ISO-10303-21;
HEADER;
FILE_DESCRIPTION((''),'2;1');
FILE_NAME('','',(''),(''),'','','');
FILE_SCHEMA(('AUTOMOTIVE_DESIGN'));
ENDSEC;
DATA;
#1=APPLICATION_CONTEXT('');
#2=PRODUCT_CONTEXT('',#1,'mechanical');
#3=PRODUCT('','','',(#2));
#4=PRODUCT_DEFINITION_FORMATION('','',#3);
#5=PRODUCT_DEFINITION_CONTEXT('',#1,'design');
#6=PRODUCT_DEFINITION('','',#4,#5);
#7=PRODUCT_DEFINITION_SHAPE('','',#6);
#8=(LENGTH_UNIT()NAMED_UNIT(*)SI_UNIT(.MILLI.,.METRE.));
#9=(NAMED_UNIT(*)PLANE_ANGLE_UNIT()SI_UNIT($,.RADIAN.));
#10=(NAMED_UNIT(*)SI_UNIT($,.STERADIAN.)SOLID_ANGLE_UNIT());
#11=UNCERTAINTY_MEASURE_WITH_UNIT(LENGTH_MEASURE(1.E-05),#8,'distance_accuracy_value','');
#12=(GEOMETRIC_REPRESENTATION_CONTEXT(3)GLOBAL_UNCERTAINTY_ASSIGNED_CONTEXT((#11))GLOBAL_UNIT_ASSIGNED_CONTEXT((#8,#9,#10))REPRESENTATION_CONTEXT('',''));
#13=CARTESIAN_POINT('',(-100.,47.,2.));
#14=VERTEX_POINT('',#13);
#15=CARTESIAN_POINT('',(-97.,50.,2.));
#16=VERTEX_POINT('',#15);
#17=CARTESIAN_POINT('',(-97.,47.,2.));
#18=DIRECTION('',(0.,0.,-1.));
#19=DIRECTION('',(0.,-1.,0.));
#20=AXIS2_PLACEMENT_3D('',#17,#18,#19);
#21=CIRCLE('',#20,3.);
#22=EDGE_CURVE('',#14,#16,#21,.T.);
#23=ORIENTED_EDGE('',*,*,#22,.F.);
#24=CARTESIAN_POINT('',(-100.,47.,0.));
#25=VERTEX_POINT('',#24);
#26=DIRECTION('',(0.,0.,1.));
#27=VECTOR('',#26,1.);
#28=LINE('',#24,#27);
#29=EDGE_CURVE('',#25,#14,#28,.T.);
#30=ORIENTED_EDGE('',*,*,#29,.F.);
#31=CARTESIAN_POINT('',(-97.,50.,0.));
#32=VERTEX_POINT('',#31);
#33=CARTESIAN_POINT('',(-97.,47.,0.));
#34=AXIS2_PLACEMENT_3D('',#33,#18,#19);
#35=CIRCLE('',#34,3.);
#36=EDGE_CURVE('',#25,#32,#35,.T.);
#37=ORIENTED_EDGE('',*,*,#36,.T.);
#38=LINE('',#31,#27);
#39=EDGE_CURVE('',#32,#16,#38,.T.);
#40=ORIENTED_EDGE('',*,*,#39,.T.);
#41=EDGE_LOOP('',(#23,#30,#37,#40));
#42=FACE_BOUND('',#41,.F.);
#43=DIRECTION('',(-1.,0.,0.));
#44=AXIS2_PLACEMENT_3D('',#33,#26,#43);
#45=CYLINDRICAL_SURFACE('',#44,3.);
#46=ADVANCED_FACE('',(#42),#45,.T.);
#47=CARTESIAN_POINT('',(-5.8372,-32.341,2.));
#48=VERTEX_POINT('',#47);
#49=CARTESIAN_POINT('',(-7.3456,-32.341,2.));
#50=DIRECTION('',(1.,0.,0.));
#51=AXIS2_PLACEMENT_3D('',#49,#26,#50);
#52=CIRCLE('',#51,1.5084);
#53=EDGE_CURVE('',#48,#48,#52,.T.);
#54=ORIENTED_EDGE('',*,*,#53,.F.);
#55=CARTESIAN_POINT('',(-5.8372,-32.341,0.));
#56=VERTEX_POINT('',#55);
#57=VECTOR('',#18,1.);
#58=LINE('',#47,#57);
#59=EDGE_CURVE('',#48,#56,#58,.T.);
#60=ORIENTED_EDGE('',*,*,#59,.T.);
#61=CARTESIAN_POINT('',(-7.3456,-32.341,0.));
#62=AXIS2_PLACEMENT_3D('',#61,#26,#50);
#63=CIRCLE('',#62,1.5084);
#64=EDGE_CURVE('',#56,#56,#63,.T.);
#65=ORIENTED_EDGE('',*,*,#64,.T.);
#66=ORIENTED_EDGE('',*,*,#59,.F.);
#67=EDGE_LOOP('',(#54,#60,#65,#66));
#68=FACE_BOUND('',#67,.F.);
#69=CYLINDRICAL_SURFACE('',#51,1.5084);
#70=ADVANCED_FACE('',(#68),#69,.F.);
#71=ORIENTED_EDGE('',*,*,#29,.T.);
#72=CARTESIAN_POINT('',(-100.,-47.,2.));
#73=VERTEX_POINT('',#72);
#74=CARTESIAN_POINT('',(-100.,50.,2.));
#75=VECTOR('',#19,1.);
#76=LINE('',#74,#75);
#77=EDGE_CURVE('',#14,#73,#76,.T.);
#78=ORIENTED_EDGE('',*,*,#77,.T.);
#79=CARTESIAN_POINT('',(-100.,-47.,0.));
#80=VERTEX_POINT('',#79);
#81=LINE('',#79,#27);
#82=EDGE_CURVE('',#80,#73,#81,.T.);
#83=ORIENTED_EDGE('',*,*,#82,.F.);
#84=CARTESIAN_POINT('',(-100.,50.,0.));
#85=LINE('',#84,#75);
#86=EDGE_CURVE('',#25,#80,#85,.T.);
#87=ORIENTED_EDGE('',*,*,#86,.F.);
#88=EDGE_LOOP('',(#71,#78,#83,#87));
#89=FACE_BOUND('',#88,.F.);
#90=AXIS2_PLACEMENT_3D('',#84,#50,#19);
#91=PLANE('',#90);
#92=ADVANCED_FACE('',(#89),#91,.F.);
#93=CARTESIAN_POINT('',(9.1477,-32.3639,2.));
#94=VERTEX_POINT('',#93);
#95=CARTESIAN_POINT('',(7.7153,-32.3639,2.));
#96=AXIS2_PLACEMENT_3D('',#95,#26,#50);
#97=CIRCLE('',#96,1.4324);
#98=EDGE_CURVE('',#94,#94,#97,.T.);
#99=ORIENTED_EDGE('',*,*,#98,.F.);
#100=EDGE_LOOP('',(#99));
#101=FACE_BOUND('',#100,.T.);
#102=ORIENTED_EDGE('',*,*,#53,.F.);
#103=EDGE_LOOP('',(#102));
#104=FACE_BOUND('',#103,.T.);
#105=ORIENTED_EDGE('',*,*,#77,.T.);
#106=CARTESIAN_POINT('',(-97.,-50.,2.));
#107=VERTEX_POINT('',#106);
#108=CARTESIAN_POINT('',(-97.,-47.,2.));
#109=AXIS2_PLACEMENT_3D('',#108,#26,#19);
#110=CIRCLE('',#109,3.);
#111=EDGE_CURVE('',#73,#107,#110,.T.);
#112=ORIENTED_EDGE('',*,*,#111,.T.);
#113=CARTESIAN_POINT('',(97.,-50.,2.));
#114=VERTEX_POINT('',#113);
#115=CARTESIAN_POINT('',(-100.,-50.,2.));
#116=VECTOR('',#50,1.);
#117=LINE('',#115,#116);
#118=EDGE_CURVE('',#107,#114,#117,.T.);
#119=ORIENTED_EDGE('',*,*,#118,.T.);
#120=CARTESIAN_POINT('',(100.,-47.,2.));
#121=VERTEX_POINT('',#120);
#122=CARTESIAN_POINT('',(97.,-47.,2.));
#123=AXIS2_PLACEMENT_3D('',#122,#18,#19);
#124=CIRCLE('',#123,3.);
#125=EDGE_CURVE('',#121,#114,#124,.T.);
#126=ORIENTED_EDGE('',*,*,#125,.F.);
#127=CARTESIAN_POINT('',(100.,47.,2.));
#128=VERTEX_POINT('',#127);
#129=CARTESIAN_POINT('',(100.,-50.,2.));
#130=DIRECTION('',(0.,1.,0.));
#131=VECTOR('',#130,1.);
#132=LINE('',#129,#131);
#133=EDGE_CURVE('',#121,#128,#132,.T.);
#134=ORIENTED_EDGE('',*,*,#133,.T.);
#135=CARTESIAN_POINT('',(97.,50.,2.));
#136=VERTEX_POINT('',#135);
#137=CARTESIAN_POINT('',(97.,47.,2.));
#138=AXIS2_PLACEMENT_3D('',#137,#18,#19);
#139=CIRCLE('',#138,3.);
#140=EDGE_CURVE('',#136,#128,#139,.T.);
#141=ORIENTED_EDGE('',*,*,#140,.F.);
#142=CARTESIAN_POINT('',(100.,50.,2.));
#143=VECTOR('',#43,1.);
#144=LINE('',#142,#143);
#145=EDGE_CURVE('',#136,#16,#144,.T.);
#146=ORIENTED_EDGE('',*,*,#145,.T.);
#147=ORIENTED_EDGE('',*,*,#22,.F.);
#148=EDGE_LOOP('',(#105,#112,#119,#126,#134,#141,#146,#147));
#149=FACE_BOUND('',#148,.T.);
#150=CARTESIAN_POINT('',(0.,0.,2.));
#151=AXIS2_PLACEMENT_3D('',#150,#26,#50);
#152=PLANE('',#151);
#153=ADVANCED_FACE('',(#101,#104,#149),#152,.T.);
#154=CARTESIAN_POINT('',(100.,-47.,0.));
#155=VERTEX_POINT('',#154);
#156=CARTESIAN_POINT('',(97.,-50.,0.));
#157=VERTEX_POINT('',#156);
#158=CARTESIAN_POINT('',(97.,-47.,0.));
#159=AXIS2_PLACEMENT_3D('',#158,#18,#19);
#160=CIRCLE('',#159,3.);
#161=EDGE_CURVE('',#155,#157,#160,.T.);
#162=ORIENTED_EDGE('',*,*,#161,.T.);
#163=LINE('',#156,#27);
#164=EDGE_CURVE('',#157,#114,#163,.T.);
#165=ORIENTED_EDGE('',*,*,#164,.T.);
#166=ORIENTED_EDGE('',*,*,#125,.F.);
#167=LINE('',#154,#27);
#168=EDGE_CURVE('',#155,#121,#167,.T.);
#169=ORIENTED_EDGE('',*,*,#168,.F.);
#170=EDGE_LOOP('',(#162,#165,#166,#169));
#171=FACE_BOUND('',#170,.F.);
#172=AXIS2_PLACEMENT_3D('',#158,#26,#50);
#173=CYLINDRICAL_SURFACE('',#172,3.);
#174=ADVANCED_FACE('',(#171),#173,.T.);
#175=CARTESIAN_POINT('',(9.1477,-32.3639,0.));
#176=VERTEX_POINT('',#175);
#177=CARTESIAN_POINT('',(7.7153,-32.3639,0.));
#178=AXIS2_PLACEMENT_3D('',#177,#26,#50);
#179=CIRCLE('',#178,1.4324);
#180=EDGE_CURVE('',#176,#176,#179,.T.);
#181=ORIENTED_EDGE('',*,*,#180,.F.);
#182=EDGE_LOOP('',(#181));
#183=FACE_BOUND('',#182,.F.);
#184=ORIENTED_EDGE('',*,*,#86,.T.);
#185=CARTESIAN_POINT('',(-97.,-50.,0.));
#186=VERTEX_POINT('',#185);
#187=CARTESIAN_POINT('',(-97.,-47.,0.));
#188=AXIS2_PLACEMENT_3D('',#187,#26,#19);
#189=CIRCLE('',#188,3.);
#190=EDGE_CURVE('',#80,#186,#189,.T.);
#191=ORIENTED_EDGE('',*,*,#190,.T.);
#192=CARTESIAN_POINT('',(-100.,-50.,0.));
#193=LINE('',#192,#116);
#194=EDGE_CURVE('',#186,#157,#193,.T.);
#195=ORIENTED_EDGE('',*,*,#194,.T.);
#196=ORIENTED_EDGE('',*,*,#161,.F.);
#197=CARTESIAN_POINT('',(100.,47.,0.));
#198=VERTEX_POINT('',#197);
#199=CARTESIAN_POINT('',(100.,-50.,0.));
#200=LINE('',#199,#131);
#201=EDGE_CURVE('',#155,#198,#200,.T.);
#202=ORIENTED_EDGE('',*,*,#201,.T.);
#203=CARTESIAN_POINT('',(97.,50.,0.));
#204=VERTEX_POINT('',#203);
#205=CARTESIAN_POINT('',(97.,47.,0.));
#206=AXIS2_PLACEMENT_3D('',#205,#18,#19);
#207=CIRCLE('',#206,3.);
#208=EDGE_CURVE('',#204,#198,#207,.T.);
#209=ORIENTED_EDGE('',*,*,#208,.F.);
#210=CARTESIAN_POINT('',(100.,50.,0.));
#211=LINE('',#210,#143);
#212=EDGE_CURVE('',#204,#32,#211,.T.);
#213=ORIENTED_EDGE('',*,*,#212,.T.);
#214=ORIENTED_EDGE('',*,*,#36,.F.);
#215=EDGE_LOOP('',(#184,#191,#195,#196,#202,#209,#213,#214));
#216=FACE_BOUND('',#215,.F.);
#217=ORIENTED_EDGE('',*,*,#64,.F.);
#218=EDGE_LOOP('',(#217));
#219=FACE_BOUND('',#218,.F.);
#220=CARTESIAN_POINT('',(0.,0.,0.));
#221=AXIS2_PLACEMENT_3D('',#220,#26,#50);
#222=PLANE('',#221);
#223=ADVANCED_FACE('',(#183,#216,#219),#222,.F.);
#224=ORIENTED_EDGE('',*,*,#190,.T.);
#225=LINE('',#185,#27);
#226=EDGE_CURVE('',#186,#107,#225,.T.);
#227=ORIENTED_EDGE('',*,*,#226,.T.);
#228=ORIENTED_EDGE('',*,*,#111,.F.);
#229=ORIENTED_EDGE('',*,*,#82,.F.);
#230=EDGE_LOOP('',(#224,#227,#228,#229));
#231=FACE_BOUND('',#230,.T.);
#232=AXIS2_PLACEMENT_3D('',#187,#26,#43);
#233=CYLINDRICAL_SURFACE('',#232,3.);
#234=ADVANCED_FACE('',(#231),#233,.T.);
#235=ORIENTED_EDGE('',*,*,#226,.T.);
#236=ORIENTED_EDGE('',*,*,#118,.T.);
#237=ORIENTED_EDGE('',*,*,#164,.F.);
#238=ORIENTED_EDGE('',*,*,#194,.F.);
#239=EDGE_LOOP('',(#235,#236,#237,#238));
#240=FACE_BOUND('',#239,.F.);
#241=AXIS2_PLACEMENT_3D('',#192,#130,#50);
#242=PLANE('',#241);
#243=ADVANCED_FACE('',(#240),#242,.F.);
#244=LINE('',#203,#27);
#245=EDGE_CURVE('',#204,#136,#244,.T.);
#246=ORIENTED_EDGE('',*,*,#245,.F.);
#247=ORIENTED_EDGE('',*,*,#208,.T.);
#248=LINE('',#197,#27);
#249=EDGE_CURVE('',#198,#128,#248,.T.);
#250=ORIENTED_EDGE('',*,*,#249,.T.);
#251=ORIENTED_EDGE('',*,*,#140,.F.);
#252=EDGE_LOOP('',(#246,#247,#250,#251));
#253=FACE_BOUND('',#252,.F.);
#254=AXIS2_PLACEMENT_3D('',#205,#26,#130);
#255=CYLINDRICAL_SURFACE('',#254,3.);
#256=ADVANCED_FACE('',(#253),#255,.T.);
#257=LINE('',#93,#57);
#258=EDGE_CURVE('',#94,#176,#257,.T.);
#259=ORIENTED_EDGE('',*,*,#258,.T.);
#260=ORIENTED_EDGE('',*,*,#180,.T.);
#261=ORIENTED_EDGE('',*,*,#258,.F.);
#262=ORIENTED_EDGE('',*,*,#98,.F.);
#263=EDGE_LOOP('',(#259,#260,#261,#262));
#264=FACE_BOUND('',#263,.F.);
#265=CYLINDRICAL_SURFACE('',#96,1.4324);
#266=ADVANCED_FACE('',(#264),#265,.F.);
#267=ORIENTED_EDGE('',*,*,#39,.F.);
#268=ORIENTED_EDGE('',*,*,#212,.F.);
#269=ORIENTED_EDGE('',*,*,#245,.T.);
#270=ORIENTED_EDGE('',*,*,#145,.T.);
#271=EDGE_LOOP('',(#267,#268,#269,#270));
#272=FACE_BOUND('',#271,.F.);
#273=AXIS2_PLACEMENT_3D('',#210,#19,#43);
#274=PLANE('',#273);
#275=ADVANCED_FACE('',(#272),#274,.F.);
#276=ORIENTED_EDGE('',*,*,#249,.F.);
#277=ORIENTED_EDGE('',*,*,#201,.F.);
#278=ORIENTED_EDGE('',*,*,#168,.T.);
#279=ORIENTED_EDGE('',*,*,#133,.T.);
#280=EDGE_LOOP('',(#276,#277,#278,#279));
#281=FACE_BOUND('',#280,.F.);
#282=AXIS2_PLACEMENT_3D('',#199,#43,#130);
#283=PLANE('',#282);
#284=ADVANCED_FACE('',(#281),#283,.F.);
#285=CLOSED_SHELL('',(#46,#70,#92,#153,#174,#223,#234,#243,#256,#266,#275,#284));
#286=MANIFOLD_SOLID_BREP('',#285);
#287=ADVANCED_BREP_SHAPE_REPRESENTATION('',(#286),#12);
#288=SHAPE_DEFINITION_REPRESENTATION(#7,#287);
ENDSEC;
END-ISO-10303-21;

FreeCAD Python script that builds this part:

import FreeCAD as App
import Part
import Sketcher


def edges_at(feature, points):
    """Names of the edges that pass closest to the given points."""
    edges = feature.Shape.Edges
    near = lambda p: min(range(len(edges)), key=lambda i: edges[i].distToShape(Part.Vertex(*p))[0])
    return sorted({f"Edge{near(p) + 1}" for p in points})

doc = App.newDocument("Part")
body = doc.addObject("PartDesign::Body", "Body")

sketch1 = body.newObject("Sketcher::SketchObject", "Sketch")
sketch1.AttachmentSupport = (doc.getObject("XY_Plane"), [""])
sketch1.MapMode = "FlatFace"
sketch1.addGeometry(Part.LineSegment(App.Vector(-100, 50, 0), App.Vector(-100, -50, 0)), False)
sketch1.addGeometry(Part.LineSegment(App.Vector(-100, -50, 0), App.Vector(100, -50, 0)), False)
sketch1.addGeometry(Part.LineSegment(App.Vector(100, -50, 0), App.Vector(100, 50, 0)), False)
sketch1.addGeometry(Part.LineSegment(App.Vector(100, 50, 0), App.Vector(-100, 50, 0)), False)
sketch1.addConstraint(Sketcher.Constraint("Coincident", 0, 2, 1, 1))
sketch1.addConstraint(Sketcher.Constraint("Coincident", 1, 2, 2, 1))
sketch1.addConstraint(Sketcher.Constraint("Coincident", 2, 2, 3, 1))
sketch1.addConstraint(Sketcher.Constraint("Coincident", 3, 2, 0, 1))
sketch1.addConstraint(Sketcher.Constraint("Vertical", 0))
sketch1.addConstraint(Sketcher.Constraint("Horizontal", 1))
sketch1.addConstraint(Sketcher.Constraint("Vertical", 2))
sketch1.addConstraint(Sketcher.Constraint("Horizontal", 3))
sketch1.addConstraint(Sketcher.Constraint("Symmetric", 0, 2, 2, 2, -1, 1))
sketch1.addConstraint(Sketcher.Constraint("DistanceX", 1, 1, 1, 2, 200.0))
sketch1.addConstraint(Sketcher.Constraint("DistanceY", 0, 2, 0, 1, 100.0))
pad1 = body.newObject("PartDesign::Pad", "Pad")
pad1.Profile = sketch1
pad1.Length = 2
doc.recompute()

fillet = body.newObject("PartDesign::Fillet", "Fillet")
fillet.Base = (pad1, edges_at(pad1, [
    (-100, 50, 1),
    (100, 50, 1),
    (100, -50, 1),
    (-100, -50, 1),
]))
fillet.Radius = 3

sketch2 = body.newObject("Sketcher::SketchObject", "Sketch001")
sketch2.AttachmentSupport = (doc.getObject("XY_Plane"), [""])
sketch2.MapMode = "FlatFace"
sketch2.AttachmentOffset = App.Placement(App.Vector(0, 0, 2), App.Rotation())
sketch2.addGeometry(Part.Circle(App.Vector(-7.3, -32.3, 0), App.Vector(0, 0, 1), 1.5), False)
sketch2.addGeometry(Part.Circle(App.Vector(7.7, -32.4, 0), App.Vector(0, 0, 1), 1.4), False)
sketch2.addConstraint(Sketcher.Constraint("Diameter", 0, 3.0168))
sketch2.addConstraint(Sketcher.Constraint("Diameter", 1, 2.8648))
sketch2.addConstraint(Sketcher.Constraint("DistanceY", 0, 3, -1, 1, 32.341))
sketch2.addConstraint(Sketcher.Constraint("DistanceY", 1, 3, -1, 1, 32.364))
sketch2.addConstraint(Sketcher.Constraint("DistanceX", 0, 3, 1, 3, 15.061))
sketch2.addConstraint(Sketcher.Constraint("DistanceX", 0, 3, -1, 1, 7.3456))
pocket1 = body.newObject("PartDesign::Pocket", "Pocket")
pocket1.Profile = sketch2
pocket1.Type = "ThroughAll"

doc.recompute()
